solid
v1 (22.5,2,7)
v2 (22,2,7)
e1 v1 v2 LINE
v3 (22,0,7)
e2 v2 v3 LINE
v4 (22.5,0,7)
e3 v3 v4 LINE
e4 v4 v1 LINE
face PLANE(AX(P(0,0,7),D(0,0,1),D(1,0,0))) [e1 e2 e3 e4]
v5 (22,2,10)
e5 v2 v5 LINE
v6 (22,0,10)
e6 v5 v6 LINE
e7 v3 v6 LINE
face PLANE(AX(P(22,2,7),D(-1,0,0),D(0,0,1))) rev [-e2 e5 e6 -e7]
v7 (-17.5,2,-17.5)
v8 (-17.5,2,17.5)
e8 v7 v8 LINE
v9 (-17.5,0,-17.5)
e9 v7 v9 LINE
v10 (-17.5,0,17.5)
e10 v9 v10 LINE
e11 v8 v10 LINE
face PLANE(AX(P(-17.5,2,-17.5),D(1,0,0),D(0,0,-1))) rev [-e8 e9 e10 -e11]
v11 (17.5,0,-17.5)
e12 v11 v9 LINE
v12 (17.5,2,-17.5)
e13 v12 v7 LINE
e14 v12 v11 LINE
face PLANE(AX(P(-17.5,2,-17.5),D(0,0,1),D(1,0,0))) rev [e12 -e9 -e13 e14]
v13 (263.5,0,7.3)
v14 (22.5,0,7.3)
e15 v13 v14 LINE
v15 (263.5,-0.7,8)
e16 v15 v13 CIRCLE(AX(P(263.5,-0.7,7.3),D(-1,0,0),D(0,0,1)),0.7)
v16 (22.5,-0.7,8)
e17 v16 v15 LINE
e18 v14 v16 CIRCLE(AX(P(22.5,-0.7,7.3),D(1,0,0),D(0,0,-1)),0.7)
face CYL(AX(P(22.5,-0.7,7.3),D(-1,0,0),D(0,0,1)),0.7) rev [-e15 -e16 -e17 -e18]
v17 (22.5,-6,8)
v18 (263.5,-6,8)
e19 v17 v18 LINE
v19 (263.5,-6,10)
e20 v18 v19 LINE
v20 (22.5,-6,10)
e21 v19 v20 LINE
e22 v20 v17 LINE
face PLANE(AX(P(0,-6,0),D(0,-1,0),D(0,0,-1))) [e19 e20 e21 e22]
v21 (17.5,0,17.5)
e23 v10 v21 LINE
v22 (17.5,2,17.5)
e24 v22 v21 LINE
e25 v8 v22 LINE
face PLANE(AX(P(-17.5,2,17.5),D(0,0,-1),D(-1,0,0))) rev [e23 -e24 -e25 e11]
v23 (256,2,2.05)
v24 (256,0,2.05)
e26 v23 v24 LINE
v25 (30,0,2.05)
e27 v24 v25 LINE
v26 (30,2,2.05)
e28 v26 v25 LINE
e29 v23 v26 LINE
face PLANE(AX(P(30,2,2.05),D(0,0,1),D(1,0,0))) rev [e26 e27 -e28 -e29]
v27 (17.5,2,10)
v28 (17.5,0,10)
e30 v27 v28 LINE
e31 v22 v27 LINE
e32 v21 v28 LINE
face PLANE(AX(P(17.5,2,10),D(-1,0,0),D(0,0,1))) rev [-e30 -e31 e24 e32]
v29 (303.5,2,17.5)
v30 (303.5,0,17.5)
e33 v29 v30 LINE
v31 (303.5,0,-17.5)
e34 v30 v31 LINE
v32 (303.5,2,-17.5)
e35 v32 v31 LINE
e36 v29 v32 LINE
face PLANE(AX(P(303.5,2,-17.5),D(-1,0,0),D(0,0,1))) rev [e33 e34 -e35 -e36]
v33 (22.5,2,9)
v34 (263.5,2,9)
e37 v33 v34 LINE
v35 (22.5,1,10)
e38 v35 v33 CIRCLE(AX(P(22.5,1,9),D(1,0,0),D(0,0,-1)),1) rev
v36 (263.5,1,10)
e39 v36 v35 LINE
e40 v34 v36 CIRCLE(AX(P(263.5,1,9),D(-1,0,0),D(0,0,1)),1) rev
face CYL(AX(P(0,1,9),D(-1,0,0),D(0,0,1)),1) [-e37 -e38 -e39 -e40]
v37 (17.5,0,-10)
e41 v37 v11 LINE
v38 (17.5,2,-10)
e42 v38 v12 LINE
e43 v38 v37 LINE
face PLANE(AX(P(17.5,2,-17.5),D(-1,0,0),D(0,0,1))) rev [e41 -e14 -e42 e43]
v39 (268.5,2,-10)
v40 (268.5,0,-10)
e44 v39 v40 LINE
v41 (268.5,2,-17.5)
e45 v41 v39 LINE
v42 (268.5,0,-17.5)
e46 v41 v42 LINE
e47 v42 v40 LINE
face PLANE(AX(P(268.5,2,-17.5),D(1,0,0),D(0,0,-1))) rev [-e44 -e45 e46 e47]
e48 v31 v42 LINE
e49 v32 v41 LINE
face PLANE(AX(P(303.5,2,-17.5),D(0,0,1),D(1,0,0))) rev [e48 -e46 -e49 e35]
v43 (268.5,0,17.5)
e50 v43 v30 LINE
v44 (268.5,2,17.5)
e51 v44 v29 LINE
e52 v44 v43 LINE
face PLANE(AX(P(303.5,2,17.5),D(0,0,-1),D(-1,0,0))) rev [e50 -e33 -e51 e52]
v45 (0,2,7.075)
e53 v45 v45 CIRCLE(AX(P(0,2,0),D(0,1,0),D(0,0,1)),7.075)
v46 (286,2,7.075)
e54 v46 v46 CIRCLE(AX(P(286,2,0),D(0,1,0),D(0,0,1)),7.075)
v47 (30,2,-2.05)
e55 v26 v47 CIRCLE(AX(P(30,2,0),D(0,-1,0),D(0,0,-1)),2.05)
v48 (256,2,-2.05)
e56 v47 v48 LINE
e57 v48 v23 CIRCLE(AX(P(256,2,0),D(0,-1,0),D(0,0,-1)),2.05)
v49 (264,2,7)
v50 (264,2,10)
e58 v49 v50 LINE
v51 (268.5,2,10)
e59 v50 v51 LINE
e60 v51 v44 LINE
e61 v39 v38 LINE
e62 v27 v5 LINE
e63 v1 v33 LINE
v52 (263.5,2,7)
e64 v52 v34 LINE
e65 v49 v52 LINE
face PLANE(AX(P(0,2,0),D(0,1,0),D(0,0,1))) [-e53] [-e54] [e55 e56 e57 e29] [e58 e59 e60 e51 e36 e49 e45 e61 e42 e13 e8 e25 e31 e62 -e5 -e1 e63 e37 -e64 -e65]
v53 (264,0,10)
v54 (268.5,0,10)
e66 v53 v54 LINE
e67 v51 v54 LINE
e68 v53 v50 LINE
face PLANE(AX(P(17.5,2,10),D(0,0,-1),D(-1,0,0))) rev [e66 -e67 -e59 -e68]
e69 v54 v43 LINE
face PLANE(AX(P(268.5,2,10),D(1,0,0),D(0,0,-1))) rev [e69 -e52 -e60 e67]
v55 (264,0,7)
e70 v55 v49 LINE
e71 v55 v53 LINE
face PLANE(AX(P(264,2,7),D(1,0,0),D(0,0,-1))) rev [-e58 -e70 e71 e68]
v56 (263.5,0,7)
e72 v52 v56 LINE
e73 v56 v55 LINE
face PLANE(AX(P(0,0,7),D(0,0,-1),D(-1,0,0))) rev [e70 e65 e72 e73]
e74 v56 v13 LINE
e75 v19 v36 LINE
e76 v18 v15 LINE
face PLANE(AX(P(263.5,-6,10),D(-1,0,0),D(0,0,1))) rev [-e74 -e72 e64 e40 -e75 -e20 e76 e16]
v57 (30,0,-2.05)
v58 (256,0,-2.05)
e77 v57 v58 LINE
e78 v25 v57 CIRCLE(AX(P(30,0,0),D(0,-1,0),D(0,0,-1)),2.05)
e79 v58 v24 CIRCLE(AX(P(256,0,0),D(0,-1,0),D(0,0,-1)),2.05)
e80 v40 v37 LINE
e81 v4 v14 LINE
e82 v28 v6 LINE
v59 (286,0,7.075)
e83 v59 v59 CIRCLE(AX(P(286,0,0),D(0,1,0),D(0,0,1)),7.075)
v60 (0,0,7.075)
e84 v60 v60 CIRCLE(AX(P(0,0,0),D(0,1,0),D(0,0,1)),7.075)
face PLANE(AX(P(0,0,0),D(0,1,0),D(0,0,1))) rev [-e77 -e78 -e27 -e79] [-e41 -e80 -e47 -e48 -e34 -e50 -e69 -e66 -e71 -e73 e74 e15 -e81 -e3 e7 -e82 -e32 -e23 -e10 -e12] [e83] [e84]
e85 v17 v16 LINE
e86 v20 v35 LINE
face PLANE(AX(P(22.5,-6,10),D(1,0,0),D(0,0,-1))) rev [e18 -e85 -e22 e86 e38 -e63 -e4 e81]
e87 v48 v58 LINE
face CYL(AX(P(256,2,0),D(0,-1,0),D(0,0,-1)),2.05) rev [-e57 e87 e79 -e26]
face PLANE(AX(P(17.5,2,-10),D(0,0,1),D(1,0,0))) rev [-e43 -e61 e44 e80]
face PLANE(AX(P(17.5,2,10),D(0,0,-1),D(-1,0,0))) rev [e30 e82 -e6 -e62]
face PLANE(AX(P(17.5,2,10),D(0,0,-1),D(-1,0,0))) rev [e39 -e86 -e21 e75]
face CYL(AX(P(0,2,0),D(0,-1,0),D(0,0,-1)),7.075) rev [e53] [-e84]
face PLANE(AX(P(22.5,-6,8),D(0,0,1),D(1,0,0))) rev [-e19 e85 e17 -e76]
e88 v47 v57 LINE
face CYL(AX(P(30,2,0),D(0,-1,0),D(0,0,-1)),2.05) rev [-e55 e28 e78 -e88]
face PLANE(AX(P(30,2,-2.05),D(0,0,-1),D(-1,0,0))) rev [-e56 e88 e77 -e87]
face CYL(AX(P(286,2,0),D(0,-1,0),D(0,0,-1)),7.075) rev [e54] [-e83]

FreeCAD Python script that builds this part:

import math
import FreeCAD as App
import Part
import Sketcher


def edges_at(feature, points):
    """Names of the edges that pass closest to the given points."""
    edges = feature.Shape.Edges
    near = lambda p: min(range(len(edges)), key=lambda i: edges[i].distToShape(Part.Vertex(*p))[0])
    return sorted({f"Edge{near(p) + 1}" for p in points})

doc = App.newDocument("Part")
body = doc.addObject("PartDesign::Body", "Body")

sketch1 = body.newObject("Sketcher::SketchObject", "Sketch")
sketch1.AttachmentSupport = (doc.getObject("XZ_Plane"), [""])
sketch1.MapMode = "FlatFace"
sketch1.addGeometry(Part.LineSegment(App.Vector(18, -18, 0), App.Vector(-18, -18, 0)), False)
sketch1.addGeometry(Part.LineSegment(App.Vector(-18, -18, 0), App.Vector(-18, 18, 0)), False)
sketch1.addGeometry(Part.LineSegment(App.Vector(-18, 18, 0), App.Vector(18, 18, 0)), False)
sketch1.addGeometry(Part.LineSegment(App.Vector(18, 18, 0), App.Vector(18, 10, 0)), False)
sketch1.addGeometry(Part.LineSegment(App.Vector(18, 10, 0), App.Vector(268, 10, 0)), False)
sketch1.addGeometry(Part.LineSegment(App.Vector(268, 10, 0), App.Vector(268, 18, 0)), False)
sketch1.addGeometry(Part.LineSegment(App.Vector(268, 18, 0), App.Vector(304, 18, 0)), False)
sketch1.addGeometry(Part.LineSegment(App.Vector(304, 18, 0), App.Vector(304, -18, 0)), False)
sketch1.addGeometry(Part.LineSegment(App.Vector(304, -18, 0), App.Vector(268, -18, 0)), False)
sketch1.addGeometry(Part.LineSegment(App.Vector(268, -18, 0), App.Vector(268, -10, 0)), False)
sketch1.addGeometry(Part.LineSegment(App.Vector(268, -10, 0), App.Vector(18, -10, 0)), False)
sketch1.addGeometry(Part.LineSegment(App.Vector(18, -10, 0), App.Vector(18, -18, 0)), False)
sketch1.addGeometry(Part.Circle(App.Vector(286, 0, 0), App.Vector(0, 0, 1), 7), False)
sketch1.addGeometry(Part.Circle(App.Vector(0, 0, 0), App.Vector(0, 0, 1), 7), False)
sketch1.addConstraint(Sketcher.Constraint("Coincident", 0, 2, 1, 1))
sketch1.addConstraint(Sketcher.Constraint("Coincident", 1, 2, 2, 1))
sketch1.addConstraint(Sketcher.Constraint("Coincident", 2, 2, 3, 1))
sketch1.addConstraint(Sketcher.Constraint("Coincident", 3, 2, 4, 1))
sketch1.addConstraint(Sketcher.Constraint("Coincident", 4, 2, 5, 1))
sketch1.addConstraint(Sketcher.Constraint("Coincident", 5, 2, 6, 1))
sketch1.addConstraint(Sketcher.Constraint("Coincident", 6, 2, 7, 1))
sketch1.addConstraint(Sketcher.Constraint("Coincident", 7, 2, 8, 1))
sketch1.addConstraint(Sketcher.Constraint("Coincident", 8, 2, 9, 1))
sketch1.addConstraint(Sketcher.Constraint("Coincident", 9, 2, 10, 1))
sketch1.addConstraint(Sketcher.Constraint("Coincident", 10, 2, 11, 1))
sketch1.addConstraint(Sketcher.Constraint("Coincident", 11, 2, 0, 1))
sketch1.addConstraint(Sketcher.Constraint("Horizontal", 0))
sketch1.addConstraint(Sketcher.Constraint("Vertical", 1))
sketch1.addConstraint(Sketcher.Constraint("Horizontal", 2))
sketch1.addConstraint(Sketcher.Constraint("Vertical", 3))
sketch1.addConstraint(Sketcher.Constraint("Horizontal", 4))
sketch1.addConstraint(Sketcher.Constraint("Vertical", 5))
sketch1.addConstraint(Sketcher.Constraint("Horizontal", 6))
sketch1.addConstraint(Sketcher.Constraint("Vertical", 7))
sketch1.addConstraint(Sketcher.Constraint("Horizontal", 8))
sketch1.addConstraint(Sketcher.Constraint("Vertical", 9))
sketch1.addConstraint(Sketcher.Constraint("Horizontal", 10))
sketch1.addConstraint(Sketcher.Constraint("Vertical", 11))
sketch1.addConstraint(Sketcher.Constraint("Coincident", 13, 3, -1, 1))
sketch1.addConstraint(Sketcher.Constraint("Equal", 12, 13))
sketch1.addConstraint(Sketcher.Constraint("Symmetric", 0, 2, 2, 2, -1, 1))
sketch1.addConstraint(Sketcher.Constraint("Symmetric", 5, 2, 8, 2, -1))
sketch1.addConstraint(Sketcher.Constraint("Symmetric", 3, 2, 10, 2, -1))
sketch1.addConstraint(Sketcher.Constraint("PointOnObject", 12, 3, -1))
sketch1.addConstraint(Sketcher.Constraint("Horizontal", 2, 2, 5, 2))
sketch1.addConstraint(Sketcher.Constraint("Equal", 2, 6))
sketch1.addConstraint(Sketcher.Constraint("Equal", 8, 1))
sketch1.addConstraint(Sketcher.Constraint("Diameter", 12, 14.15))
sketch1.addConstraint(Sketcher.Constraint("DistanceX", 0, 2, 0, 1, 35.0))
sketch1.addConstraint(Sketcher.Constraint("DistanceX", 4, 1, 4, 2, 251.0))
sketch1.addConstraint(Sketcher.Constraint("DistanceY", 3, 2, 3, 1, 7.5))
sketch1.addConstraint(Sketcher.Constraint("DistanceX", -1, 1, 12, 3, 286.0))
pad1 = body.newObject("PartDesign::Pad", "Pad")
pad1.Profile = sketch1
pad1.Length = 2
pad1.Reversed = True

sketch2 = body.newObject("Sketcher::SketchObject", "Sketch001")
sketch2.AttachmentSupport = (doc.getObject("XZ_Plane"), [""])
sketch2.MapMode = "FlatFace"
sketch2.addGeometry(Part.LineSegment(App.Vector(22.5, 10, 0), App.Vector(22.5, 8, 0)), False)
sketch2.addGeometry(Part.LineSegment(App.Vector(22.5, 8, 0), App.Vector(263.5, 8, 0)), False)
sketch2.addGeometry(Part.LineSegment(App.Vector(263.5, 8, 0), App.Vector(263.5, 10, 0)), False)
sketch2.addGeometry(Part.LineSegment(App.Vector(263.5, 10, 0), App.Vector(22.5, 10, 0)), False)
sketch2.addConstraint(Sketcher.Constraint("Coincident", 0, 2, 1, 1))
sketch2.addConstraint(Sketcher.Constraint("Coincident", 1, 2, 2, 1))
sketch2.addConstraint(Sketcher.Constraint("Coincident", 2, 2, 3, 1))
sketch2.addConstraint(Sketcher.Constraint("Coincident", 3, 2, 0, 1))
sketch2.addConstraint(Sketcher.Constraint("Vertical", 0))
sketch2.addConstraint(Sketcher.Constraint("Horizontal", 1))
sketch2.addConstraint(Sketcher.Constraint("Vertical", 2))
sketch2.addConstraint(Sketcher.Constraint("Horizontal", 3))
sketch2.addConstraint(Sketcher.Constraint("DistanceX", 1, 1, 1, 2, 241.0))
sketch2.addConstraint(Sketcher.Constraint("DistanceY", 0, 2, 0, 1, 2.0))
sketch2.addConstraint(Sketcher.Constraint("DistanceY", -1, 1, 0, 2, 8.0))
sketch2.addConstraint(Sketcher.Constraint("DistanceX", -1, 1, 0, 2, 22.5))
pad2 = body.newObject("PartDesign::Pad", "Pad001")
pad2.Profile = sketch2
pad2.Length = 6

sketch3 = body.newObject("Sketcher::SketchObject", "Sketch002")
sketch3.AttachmentSupport = (doc.getObject("XY_Plane"), [""])
sketch3.MapMode = "FlatFace"
sketch3.AttachmentOffset = App.Placement(App.Vector(0, 0, 10), App.Rotation())
sketch3.addGeometry(Part.LineSegment(App.Vector(22, 2, 0), App.Vector(22, 0, 0)), False)
sketch3.addGeometry(Part.LineSegment(App.Vector(22, 0, 0), App.Vector(22.5, 0, 0)), False)
sketch3.addGeometry(Part.LineSegment(App.Vector(22.5, 0, 0), App.Vector(22.5, 2, 0)), False)
sketch3.addGeometry(Part.LineSegment(App.Vector(22.5, 2, 0), App.Vector(22, 2, 0)), False)
sketch3.addGeometry(Part.LineSegment(App.Vector(263.5, 2, 0), App.Vector(263.5, 0, 0)), False)
sketch3.addGeometry(Part.LineSegment(App.Vector(263.5, 0, 0), App.Vector(264, 0, 0)), False)
sketch3.addGeometry(Part.LineSegment(App.Vector(264, 0, 0), App.Vector(264, 2, 0)), False)
sketch3.addGeometry(Part.LineSegment(App.Vector(264, 2, 0), App.Vector(263.5, 2, 0)), False)
sketch3.addConstraint(Sketcher.Constraint("Coincident", 0, 2, 1, 1))
sketch3.addConstraint(Sketcher.Constraint("Coincident", 1, 2, 2, 1))
sketch3.addConstraint(Sketcher.Constraint("Coincident", 2, 2, 3, 1))
sketch3.addConstraint(Sketcher.Constraint("Coincident", 3, 2, 0, 1))
sketch3.addConstraint(Sketcher.Constraint("Coincident", 4, 2, 5, 1))
sketch3.addConstraint(Sketcher.Constraint("Coincident", 5, 2, 6, 1))
sketch3.addConstraint(Sketcher.Constraint("Coincident", 6, 2, 7, 1))
sketch3.addConstraint(Sketcher.Constraint("Coincident", 7, 2, 4, 1))
sketch3.addConstraint(Sketcher.Constraint("Vertical", 0))
sketch3.addConstraint(Sketcher.Constraint("Horizontal", 1))
sketch3.addConstraint(Sketcher.Constraint("Vertical", 2))
sketch3.addConstraint(Sketcher.Constraint("Horizontal", 3))
sketch3.addConstraint(Sketcher.Constraint("Vertical", 4))
sketch3.addConstraint(Sketcher.Constraint("Horizontal", 5))
sketch3.addConstraint(Sketcher.Constraint("Vertical", 6))
sketch3.addConstraint(Sketcher.Constraint("Horizontal", 7))
sketch3.addConstraint(Sketcher.Constraint("PointOnObject", 0, 2, -1))
sketch3.addConstraint(Sketcher.Constraint("PointOnObject", 4, 2, -1))
sketch3.addConstraint(Sketcher.Constraint("Horizontal", 3, 2, 6, 2))
sketch3.addConstraint(Sketcher.Constraint("Equal", 3, 5))
sketch3.addConstraint(Sketcher.Constraint("DistanceY", 0, 2, 0, 1, 2.0))
sketch3.addConstraint(Sketcher.Constraint("DistanceX", 1, 1, 1, 2, 0.5))
sketch3.addConstraint(Sketcher.Constraint("DistanceX", -1, 1, 0, 2, 22.0))
sketch3.addConstraint(Sketcher.Constraint("DistanceX", -1, 1, 5, 2, 264.0))
pocket1 = body.newObject("PartDesign::Pocket", "Pocket")
pocket1.Profile = sketch3
pocket1.Length = 3
doc.recompute()

fillet = body.newObject("PartDesign::Fillet", "Fillet")
fillet.Base = (pocket1, edges_at(pocket1, [(143, 2, 10)]))
fillet.Radius = 1
doc.recompute()

fillet2 = body.newObject("PartDesign::Fillet", "Fillet001")
fillet2.Base = (fillet, edges_at(fillet, [(143, 0, 8)]))
fillet2.Radius = 0.7

sketch4 = body.newObject("Sketcher::SketchObject", "Sketch003")
sketch4.AttachmentSupport = (doc.getObject("XZ_Plane"), [""])
sketch4.MapMode = "FlatFace"
sketch4.addGeometry(Part.LineSegment(App.Vector(256, 2, 0), App.Vector(30, 2, 0)), False)
sketch4.addGeometry(Part.ArcOfCircle(Part.Circle(App.Vector(30, 0, 0), App.Vector(0, 0, 1), 2), math.radians(90), math.radians(270)), False)
sketch4.addGeometry(Part.LineSegment(App.Vector(30, -2, 0), App.Vector(256, -2, 0)), False)
sketch4.addGeometry(Part.ArcOfCircle(Part.Circle(App.Vector(256, 0, 0), App.Vector(0, 0, 1), 2), math.radians(-90), math.radians(90)), False)
sketch4.addConstraint(Sketcher.Constraint("Tangent", 0, 2, 1, 1))
sketch4.addConstraint(Sketcher.Constraint("Tangent", 1, 2, 2, 1))
sketch4.addConstraint(Sketcher.Constraint("Tangent", 2, 2, 3, 1))
sketch4.addConstraint(Sketcher.Constraint("Tangent", 3, 2, 0, 1))
sketch4.addConstraint(Sketcher.Constraint("Horizontal", 0))
sketch4.addConstraint(Sketcher.Constraint("Horizontal", 2))
sketch4.addConstraint(Sketcher.Constraint("PointOnObject", 1, 3, -1))
sketch4.addConstraint(Sketcher.Constraint("DistanceX", 0, 2, 0, 1, 226.0))
sketch4.addConstraint(Sketcher.Constraint("Radius", 1, 2.05))
sketch4.addConstraint(Sketcher.Constraint("DistanceX", -1, 1, 1, 3, 30.0))
pocket2 = body.newObject("PartDesign::Pocket", "Pocket001")
pocket2.Profile = sketch4
pocket2.Type = "ThroughAll"

doc.recompute()
